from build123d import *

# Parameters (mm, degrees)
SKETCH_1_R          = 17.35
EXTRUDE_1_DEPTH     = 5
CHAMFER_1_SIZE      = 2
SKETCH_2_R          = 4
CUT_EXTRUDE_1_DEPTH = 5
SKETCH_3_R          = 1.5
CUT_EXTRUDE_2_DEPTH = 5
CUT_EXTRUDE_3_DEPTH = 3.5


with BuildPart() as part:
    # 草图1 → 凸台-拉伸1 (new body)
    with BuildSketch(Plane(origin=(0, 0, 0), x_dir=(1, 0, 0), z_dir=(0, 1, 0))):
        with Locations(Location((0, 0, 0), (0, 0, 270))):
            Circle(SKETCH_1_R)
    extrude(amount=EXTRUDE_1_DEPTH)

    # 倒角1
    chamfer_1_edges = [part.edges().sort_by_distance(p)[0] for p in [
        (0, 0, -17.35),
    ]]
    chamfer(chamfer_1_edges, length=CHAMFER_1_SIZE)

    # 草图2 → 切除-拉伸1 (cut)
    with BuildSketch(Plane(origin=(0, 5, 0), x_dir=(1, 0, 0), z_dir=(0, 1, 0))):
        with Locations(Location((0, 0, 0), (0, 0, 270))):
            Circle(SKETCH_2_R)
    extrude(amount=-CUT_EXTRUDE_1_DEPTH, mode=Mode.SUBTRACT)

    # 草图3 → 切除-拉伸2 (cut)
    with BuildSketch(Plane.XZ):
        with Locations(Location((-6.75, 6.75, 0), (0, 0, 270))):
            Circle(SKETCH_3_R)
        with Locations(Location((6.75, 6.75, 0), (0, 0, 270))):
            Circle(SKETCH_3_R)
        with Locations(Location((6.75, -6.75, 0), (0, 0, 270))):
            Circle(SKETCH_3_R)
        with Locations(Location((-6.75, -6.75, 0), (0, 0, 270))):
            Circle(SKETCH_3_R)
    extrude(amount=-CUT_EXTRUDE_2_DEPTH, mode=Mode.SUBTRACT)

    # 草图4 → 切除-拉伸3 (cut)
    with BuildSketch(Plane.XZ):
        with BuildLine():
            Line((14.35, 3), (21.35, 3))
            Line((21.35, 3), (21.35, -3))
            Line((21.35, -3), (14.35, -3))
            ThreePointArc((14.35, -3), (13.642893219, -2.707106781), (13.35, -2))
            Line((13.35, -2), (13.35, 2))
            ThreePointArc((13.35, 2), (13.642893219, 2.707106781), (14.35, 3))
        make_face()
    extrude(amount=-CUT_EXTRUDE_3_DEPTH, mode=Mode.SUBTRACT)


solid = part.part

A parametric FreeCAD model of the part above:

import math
import FreeCAD as App
import Part
import Sketcher


def edges_at(feature, points):
    """Names of the edges that pass closest to the given points."""
    edges = feature.Shape.Edges
    near = lambda p: min(range(len(edges)), key=lambda i: edges[i].distToShape(Part.Vertex(*p))[0])
    return sorted({f"Edge{near(p) + 1}" for p in points})

doc = App.newDocument("Part")
body = doc.addObject("PartDesign::Body", "Body")

# Sketch on XZ plane
sketch1 = body.newObject("Sketcher::SketchObject", "Sketch")
sketch1.AttachmentSupport = (doc.getObject("XZ_Plane"), [""])
sketch1.MapMode = "FlatFace"
sketch1.addGeometry(Part.Circle(App.Vector(0, 0, 0), App.Vector(0, 0, 1), 17), False)
sketch1.addConstraint([
    Sketcher.Constraint("Coincident", 0, 3, -1, 1),
    Sketcher.Constraint("Diameter", 0, 34.7),
])
pad1 = body.newObject("PartDesign::Pad", "Pad")
pad1.Profile = sketch1
pad1.Length = 5
pad1.Reversed = True
doc.recompute()

chamfer = body.newObject("PartDesign::Chamfer", "Chamfer")
chamfer.Base = (pad1, edges_at(pad1, [(0, 0, -17.35)]))
chamfer.Size = 2

# Sketch on XZ plane
sketch2 = body.newObject("Sketcher::SketchObject", "Sketch001")
sketch2.AttachmentSupport = (doc.getObject("XZ_Plane"), [""])
sketch2.MapMode = "FlatFace"
sketch2.AttachmentOffset = App.Placement(App.Vector(0, 0, -5), App.Rotation())
sketch2.addGeometry(Part.Circle(App.Vector(0, 0, 0), App.Vector(0, 0, 1), 4), False)
sketch2.addConstraint([
    Sketcher.Constraint("Coincident", 0, 3, -1, 1),
    Sketcher.Constraint("Diameter", 0, 8.0),
])
pocket1 = body.newObject("PartDesign::Pocket", "Pocket")
pocket1.Profile = sketch2
pocket1.Length = 5
pocket1.Reversed = True

# Sketch on XZ plane
sketch3 = body.newObject("Sketcher::SketchObject", "Sketch002")
sketch3.AttachmentSupport = (doc.getObject("XZ_Plane"), [""])
sketch3.MapMode = "FlatFace"
sketch3.addGeometry([
    Part.Circle(App.Vector(-6.8, 6.8, 0), App.Vector(0, 0, 1), 1.5),
    Part.Circle(App.Vector(6.8, 6.8, 0), App.Vector(0, 0, 1), 1.5),
    Part.Circle(App.Vector(6.8, -6.8, 0), App.Vector(0, 0, 1), 1.5),
    Part.Circle(App.Vector(-6.8, -6.8, 0), App.Vector(0, 0, 1), 1.5),
], False)
sketch3.addConstraint([
    Sketcher.Constraint("Equal", 0, 1),
    Sketcher.Constraint("Equal", 1, 2),
    Sketcher.Constraint("Equal", 2, 3),
    Sketcher.Constraint("Symmetric", 0, 3, 2, 3, -1, 1),
    Sketcher.Constraint("Symmetric", 1, 3, 3, 3, -1, 1),
    Sketcher.Constraint("Symmetric", 0, 3, 1, 3, -2),
    Sketcher.Constraint("Diameter", 0, 3.0),
    Sketcher.Constraint("DistanceX", 0, 3, 1, 3, 13.5),
    Sketcher.Constraint("DistanceY", 2, 3, 1, 3, 13.5),
])
pocket2 = body.newObject("PartDesign::Pocket", "Pocket001")
pocket2.Profile = sketch3
pocket2.Length = 5

# Sketch on XZ plane
sketch4 = body.newObject("Sketcher::SketchObject", "Sketch003")
sketch4.AttachmentSupport = (doc.getObject("XZ_Plane"), [""])
sketch4.MapMode = "FlatFace"
sketch4.addGeometry([
    Part.LineSegment(App.Vector(21.4, 3, 0), App.Vector(14.3, 3, 0)),  # 0
    Part.ArcOfCircle(Part.Circle(App.Vector(14.4, 2, 0), App.Vector(0, 0, 1), 1), math.radians(90), math.radians(180)),  # 1
    Part.LineSegment(App.Vector(13.3, 2, 0), App.Vector(13.3, -2, 0)),  # 2
    Part.ArcOfCircle(Part.Circle(App.Vector(14.4, -2, 0), App.Vector(0, 0, 1), 1), math.radians(-180), math.radians(-90)),  # 3
    Part.LineSegment(App.Vector(14.3, -3, 0), App.Vector(21.4, -3, 0)),  # 4
    Part.LineSegment(App.Vector(21.4, -3, 0), App.Vector(21.4, 3, 0)),  # 5
], False)
sketch4.addConstraint([
    Sketcher.Constraint("Tangent", 0, 2, 1, 1),
    Sketcher.Constraint("Tangent", 1, 2, 2, 1),
    Sketcher.Constraint("Tangent", 2, 2, 3, 1),
    Sketcher.Constraint("Tangent", 3, 2, 4, 1),
    Sketcher.Constraint("Coincident", 4, 2, 5, 1),
    Sketcher.Constraint("Coincident", 5, 2, 0, 1),
    Sketcher.Constraint("Horizontal", 0),
    Sketcher.Constraint("Vertical", 2),
    Sketcher.Constraint("Horizontal", 4),
    Sketcher.Constraint("Vertical", 5),
    Sketcher.Constraint("Equal", 1, 3),
    Sketcher.Constraint("Radius", 1, 1.0),
    Sketcher.Constraint("DistanceX", 0, 2, 0, 1, 7.0),
    Sketcher.Constraint("DistanceY", 2, 2, 2, 1, 4.0),
    Sketcher.Constraint("DistanceY", -1, 1, 1, 3, 2.0),
    Sketcher.Constraint("DistanceX", -1, 1, 1, 3, 14.35),
])
pocket3 = body.newObject("PartDesign::Pocket", "Pocket002")
pocket3.Profile = sketch4
pocket3.Length = 3.5

doc.recompute()
